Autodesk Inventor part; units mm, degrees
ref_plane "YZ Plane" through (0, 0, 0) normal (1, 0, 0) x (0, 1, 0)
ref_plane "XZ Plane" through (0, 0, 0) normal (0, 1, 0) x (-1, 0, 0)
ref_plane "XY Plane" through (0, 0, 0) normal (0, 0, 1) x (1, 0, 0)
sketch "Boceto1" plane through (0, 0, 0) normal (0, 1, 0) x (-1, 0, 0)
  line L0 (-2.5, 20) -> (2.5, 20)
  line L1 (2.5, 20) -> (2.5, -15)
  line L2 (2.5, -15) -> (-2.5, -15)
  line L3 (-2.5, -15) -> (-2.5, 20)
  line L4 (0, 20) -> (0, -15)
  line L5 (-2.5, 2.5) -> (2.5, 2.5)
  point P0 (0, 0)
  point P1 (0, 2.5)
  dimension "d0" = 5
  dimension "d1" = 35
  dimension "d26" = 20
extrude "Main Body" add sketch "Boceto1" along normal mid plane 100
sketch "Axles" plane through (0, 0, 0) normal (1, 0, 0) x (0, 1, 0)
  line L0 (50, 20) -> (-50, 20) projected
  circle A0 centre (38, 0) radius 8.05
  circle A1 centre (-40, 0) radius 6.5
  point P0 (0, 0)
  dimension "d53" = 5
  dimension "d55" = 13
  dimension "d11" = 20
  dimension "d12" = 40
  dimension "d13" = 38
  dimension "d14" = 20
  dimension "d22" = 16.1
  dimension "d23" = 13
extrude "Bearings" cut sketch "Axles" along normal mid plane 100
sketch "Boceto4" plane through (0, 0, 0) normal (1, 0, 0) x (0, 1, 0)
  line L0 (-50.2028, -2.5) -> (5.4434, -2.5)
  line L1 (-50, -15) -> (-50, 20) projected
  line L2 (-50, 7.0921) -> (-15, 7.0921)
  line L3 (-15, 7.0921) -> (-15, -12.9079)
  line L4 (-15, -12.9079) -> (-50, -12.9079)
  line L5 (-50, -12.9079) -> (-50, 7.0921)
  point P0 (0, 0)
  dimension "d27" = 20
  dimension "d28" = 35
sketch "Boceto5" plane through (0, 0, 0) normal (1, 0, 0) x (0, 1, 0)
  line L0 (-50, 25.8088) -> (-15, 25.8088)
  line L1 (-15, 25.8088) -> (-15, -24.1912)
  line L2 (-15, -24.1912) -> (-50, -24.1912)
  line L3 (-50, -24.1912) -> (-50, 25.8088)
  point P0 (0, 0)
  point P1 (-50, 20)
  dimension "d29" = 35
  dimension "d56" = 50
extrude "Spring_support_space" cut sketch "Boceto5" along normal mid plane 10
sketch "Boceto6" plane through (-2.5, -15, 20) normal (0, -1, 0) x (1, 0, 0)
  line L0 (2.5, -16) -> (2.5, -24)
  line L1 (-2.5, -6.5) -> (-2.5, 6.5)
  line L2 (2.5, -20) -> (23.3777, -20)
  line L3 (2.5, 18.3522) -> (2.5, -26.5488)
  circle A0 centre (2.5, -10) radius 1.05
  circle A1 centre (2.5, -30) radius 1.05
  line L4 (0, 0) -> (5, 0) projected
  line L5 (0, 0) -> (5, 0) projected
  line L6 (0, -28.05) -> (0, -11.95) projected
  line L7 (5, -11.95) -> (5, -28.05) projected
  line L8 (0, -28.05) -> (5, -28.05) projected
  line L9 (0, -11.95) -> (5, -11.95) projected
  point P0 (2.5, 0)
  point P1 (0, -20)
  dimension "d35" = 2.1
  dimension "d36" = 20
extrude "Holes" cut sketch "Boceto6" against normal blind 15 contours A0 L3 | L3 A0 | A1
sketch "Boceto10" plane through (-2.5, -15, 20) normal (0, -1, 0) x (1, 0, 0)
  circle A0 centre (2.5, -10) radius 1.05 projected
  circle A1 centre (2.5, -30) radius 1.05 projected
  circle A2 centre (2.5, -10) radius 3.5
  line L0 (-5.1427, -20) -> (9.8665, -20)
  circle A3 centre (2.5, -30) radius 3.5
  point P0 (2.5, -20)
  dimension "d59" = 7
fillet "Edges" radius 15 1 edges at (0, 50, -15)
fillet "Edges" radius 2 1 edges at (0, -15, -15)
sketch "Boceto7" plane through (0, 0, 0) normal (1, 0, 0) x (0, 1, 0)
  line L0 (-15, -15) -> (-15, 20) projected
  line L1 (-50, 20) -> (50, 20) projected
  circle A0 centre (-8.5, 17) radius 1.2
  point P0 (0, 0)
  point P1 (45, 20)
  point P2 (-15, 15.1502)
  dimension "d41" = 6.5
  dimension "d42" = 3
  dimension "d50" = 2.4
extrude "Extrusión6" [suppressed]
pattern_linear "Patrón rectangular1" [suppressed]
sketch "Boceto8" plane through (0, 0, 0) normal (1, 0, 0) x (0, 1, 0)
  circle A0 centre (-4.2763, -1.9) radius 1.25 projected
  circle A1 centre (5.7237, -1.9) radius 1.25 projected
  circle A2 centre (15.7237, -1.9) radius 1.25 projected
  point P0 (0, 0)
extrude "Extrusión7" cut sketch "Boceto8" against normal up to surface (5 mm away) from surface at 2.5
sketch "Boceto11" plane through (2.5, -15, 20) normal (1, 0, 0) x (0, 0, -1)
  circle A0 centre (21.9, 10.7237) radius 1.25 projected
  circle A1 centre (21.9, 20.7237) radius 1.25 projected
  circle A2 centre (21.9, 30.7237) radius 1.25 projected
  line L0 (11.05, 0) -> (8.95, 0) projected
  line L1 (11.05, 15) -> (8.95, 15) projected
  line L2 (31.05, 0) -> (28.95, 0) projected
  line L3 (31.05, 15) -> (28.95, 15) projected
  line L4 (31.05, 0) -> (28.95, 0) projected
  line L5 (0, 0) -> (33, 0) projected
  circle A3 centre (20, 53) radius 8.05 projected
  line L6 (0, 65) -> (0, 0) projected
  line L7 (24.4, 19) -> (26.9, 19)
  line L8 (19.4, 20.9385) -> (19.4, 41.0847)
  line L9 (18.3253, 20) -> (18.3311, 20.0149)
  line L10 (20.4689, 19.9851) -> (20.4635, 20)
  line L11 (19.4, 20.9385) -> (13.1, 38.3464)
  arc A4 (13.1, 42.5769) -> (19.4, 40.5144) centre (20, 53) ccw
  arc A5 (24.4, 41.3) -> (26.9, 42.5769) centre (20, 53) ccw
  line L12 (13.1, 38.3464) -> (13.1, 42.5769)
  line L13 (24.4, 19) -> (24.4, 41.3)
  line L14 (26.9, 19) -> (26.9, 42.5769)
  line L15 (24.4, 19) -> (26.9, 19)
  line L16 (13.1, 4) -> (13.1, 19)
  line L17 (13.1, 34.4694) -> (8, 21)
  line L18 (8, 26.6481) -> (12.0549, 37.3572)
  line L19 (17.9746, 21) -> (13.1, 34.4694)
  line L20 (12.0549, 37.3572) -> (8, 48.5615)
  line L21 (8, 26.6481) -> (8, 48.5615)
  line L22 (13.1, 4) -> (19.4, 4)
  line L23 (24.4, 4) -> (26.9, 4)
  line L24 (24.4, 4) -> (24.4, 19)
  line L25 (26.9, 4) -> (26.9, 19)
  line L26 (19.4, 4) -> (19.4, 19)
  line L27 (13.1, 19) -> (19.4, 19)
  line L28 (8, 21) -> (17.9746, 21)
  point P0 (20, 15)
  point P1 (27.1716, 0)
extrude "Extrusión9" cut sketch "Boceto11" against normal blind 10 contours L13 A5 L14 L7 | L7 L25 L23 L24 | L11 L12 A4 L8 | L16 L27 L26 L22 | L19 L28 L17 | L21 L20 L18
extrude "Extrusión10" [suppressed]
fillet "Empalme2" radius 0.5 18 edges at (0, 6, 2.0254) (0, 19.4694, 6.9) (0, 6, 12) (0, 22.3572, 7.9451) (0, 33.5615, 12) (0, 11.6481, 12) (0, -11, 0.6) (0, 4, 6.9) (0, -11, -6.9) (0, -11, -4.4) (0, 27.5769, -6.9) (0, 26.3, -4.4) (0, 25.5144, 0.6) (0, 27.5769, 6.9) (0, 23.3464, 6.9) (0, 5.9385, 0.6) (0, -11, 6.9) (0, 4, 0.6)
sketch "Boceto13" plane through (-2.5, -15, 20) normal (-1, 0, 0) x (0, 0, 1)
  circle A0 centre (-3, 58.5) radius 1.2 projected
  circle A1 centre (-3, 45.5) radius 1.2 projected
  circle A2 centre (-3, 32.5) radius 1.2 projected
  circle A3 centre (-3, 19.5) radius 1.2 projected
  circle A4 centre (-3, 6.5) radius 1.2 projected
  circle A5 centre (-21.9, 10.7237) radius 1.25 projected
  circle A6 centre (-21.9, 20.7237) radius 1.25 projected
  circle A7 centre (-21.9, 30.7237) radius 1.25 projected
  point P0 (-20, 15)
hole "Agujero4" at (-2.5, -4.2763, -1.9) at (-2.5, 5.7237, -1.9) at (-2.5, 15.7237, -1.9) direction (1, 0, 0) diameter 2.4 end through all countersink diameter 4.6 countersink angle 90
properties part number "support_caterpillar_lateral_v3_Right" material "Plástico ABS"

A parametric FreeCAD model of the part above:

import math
import FreeCAD as App
import Part
import Sketcher
from FreeCAD import Vector


def edges_at(feature, points):
    """Names of the edges that pass closest to the given points."""
    edges = feature.Shape.Edges
    near = lambda p: min(range(len(edges)), key=lambda i: edges[i].distToShape(Part.Vertex(*p))[0])
    return sorted({f"Edge{near(p) + 1}" for p in points})


def add_polygon(sketch, points):
    """Adds a closed chain of lines whose ends are joined by coincident constraints."""
    first, n = sketch.GeometryCount, len(points)
    for a, b in zip(points, points[1:] + points[:1]):
        sketch.addGeometry(Part.LineSegment(App.Vector(*a, 0), App.Vector(*b, 0)), False)
    for i in range(n):
        sketch.addConstraint(Sketcher.Constraint("Coincident", first + i, 2, first + (i + 1) % n, 1))

doc = App.newDocument("Part")
body = doc.addObject("PartDesign::Body", "Body")

# Sketch on XZ plane
sketch1 = body.newObject("Sketcher::SketchObject", "Sketch")
sketch1.AttachmentSupport = (doc.getObject("XZ_Plane"), [""])
sketch1.MapMode = "FlatFace"
add_polygon(sketch1, [(2, 20), (2, -15), (-2, -15), (-2, 20)])  # lines 0-3
sketch1.addConstraint([
    Sketcher.Constraint("Vertical", 0),
    Sketcher.Constraint("Horizontal", 1),
    Sketcher.Constraint("Vertical", 2),
    Sketcher.Constraint("Horizontal", 3),
    Sketcher.Constraint("DistanceX", 1, 2, 1, 1, 5.0),
    Sketcher.Constraint("DistanceY", 0, 2, 0, 1, 35.0),
    Sketcher.Constraint("DistanceY", -1, 1, 2, 2, 20.0),
    Sketcher.Constraint("DistanceX", -1, 1, 0, 2, 2.5),
])
pad1 = body.newObject("PartDesign::Pad", "Pad")
pad1.Profile = sketch1
pad1.Length = 100
pad1.Midplane = True

# Sketch on YZ plane
sketch2 = body.newObject("Sketcher::SketchObject", "Sketch001")
sketch2.AttachmentSupport = (doc.getObject("YZ_Plane"), [""])
sketch2.MapMode = "FlatFace"
sketch2.addGeometry([
    Part.Circle(Vector(38, 0, 0), Vector(0, 0, 1), 8),
    Part.Circle(Vector(-40, 0, 0), Vector(0, 0, 1), 6),
], False)
sketch2.addConstraint([
    Sketcher.Constraint("PointOnObject", 0, 3, -1),
    Sketcher.Constraint("PointOnObject", 1, 3, -1),
    Sketcher.Constraint("Diameter", 1, 13.0),
    Sketcher.Constraint("Diameter", 0, 16.1),
    Sketcher.Constraint("DistanceX", -1, 1, 0, 3, 38.0),
    Sketcher.Constraint("DistanceX", 1, 3, -1, 1, 40.0),
])
pocket1 = body.newObject("PartDesign::Pocket", "Pocket")
pocket1.Profile = sketch2
pocket1.Length = 100
pocket1.Midplane = True

# Sketch on YZ plane
sketch3 = body.newObject("Sketcher::SketchObject", "Sketch002")
sketch3.AttachmentSupport = (doc.getObject("YZ_Plane"), [""])
sketch3.MapMode = "FlatFace"
add_polygon(sketch3, [(-15, 26), (-50, 26), (-50, -24), (-15, -24)])  # lines 0-3
sketch3.addConstraint([
    Sketcher.Constraint("Horizontal", 0),
    Sketcher.Constraint("Vertical", 1),
    Sketcher.Constraint("Horizontal", 2),
    Sketcher.Constraint("Vertical", 3),
    Sketcher.Constraint("DistanceX", 0, 2, 0, 1, 35.0),
    Sketcher.Constraint("DistanceY", 1, 2, 1, 1, 50.0),
    Sketcher.Constraint("DistanceX", 0, 2, -1, 1, 50.0),
    Sketcher.Constraint("DistanceY", -1, 1, 0, 2, 25.8088),
])
pocket2 = body.newObject("PartDesign::Pocket", "Pocket001")
pocket2.Profile = sketch3
pocket2.Length = 10
pocket2.Midplane = True

# Sketch on XZ plane
sketch4 = body.newObject("Sketcher::SketchObject", "Sketch003")
sketch4.AttachmentSupport = (doc.getObject("XZ_Plane"), [""])
sketch4.MapMode = "FlatFace"
sketch4.AttachmentOffset = App.Placement(Vector(0, 0, 15), App.Rotation())
sketch4.addGeometry([
    Part.Circle(Vector(0, 10, 0), Vector(0, 0, 1), 1.1),
    Part.Circle(Vector(0, -10, 0), Vector(0, 0, 1), 1.1),
], False)
sketch4.addConstraint([
    Sketcher.Constraint("Equal", 0, 1),
    Sketcher.Constraint("Symmetric", 0, 3, 1, 3, -1, 1),
    Sketcher.Constraint("PointOnObject", 0, 3, -2),
    Sketcher.Constraint("Diameter", 0, 2.1),
    Sketcher.Constraint("DistanceY", 1, 3, 0, 3, 20.0),
])
pocket3 = body.newObject("PartDesign::Pocket", "Pocket002")
pocket3.Profile = sketch4
pocket3.Length = 15
doc.recompute()

fillet = body.newObject("PartDesign::Fillet", "Fillet")
fillet.Base = (pocket3, edges_at(pocket3, [(0, 50, -15)]))
fillet.Radius = 15
doc.recompute()

fillet2 = body.newObject("PartDesign::Fillet", "Fillet001")
fillet2.Base = (fillet, edges_at(fillet, [(0, -15, -15)]))
fillet2.Radius = 2

# Sketch on YZ plane
sketch5 = body.newObject("Sketcher::SketchObject", "Sketch004")
sketch5.AttachmentSupport = (doc.getObject("YZ_Plane"), [""])
sketch5.MapMode = "FlatFace"
sketch5.AttachmentOffset = App.Placement(Vector(0, 0, 2.5), App.Rotation())
sketch5.addGeometry([
    Part.Circle(Vector(-4.3, -1.9, 0), Vector(0, 0, 1), 1.2),
    Part.Circle(Vector(5.7, -1.9, 0), Vector(0, 0, 1), 1.2),
    Part.Circle(Vector(15.7, -1.9, 0), Vector(0, 0, 1), 1.2),
], False)
sketch5.addConstraint([
    Sketcher.Constraint("Equal", 0, 1),
    Sketcher.Constraint("Equal", 1, 2),
    Sketcher.Constraint("Horizontal", 0, 3, 1, 3),
    Sketcher.Constraint("Horizontal", 1, 3, 2, 3),
    Sketcher.Constraint("Diameter", 0, 2.5),
    Sketcher.Constraint("DistanceX", 0, 3, 1, 3, 10.0),
    Sketcher.Constraint("DistanceX", 1, 3, 2, 3, 10.0),
    Sketcher.Constraint("DistanceY", 0, 3, -1, 1, 1.9),
    Sketcher.Constraint("DistanceX", 0, 3, -1, 1, 4.2763),
])
pocket4 = body.newObject("PartDesign::Pocket", "Pocket003")
pocket4.Profile = sketch5
pocket4.Length = 5

# Sketch on YZ plane
sketch6 = body.newObject("Sketcher::SketchObject", "Sketch005")
sketch6.AttachmentSupport = (doc.getObject("YZ_Plane"), [""])
sketch6.MapMode = "FlatFace"
sketch6.AttachmentOffset = App.Placement(Vector(0, 0, 2.5), App.Rotation())
sketch6.addGeometry(Part.LineSegment(Vector(26.3, -4.4, 0), Vector(-11, -4.4, 0)), False)  # 0
sketch6.addGeometry(Part.LineSegment(Vector(-11, -4.4, 0), Vector(-11, -6.9, 0)), False)  # 1
sketch6.addGeometry(Part.LineSegment(Vector(-11, -6.9, 0), Vector(27.6, -6.9, 0)), False)  # 2
sketch6.addGeometry(Part.ArcOfCircle(Part.Circle(Vector(38, 0, 0), Vector(0, 0, 1), 12.5), math.radians(-159.39), math.radians(-146.5)), False)  # 3
sketch6.addGeometry(Part.LineSegment(Vector(23.3, 6.9, 0), Vector(5.9, 0.6, 0)), False)  # 4
sketch6.addGeometry(Part.LineSegment(Vector(5.9, 0.6, 0), Vector(25.5, 0.6, 0)), False)  # 5
sketch6.addGeometry(Part.ArcOfCircle(Part.Circle(Vector(38, 0, 0), Vector(0, 0, 1), 12.5), math.radians(146), math.radians(177)), False)  # 6
sketch6.addGeometry(Part.LineSegment(Vector(27.6, 6.9, 0), Vector(23.3, 6.9, 0)), False)  # 7
add_polygon(sketch6, [(4, 6.9), (-11, 6.9), (-11, 0.6), (4, 0.6)])  # lines 8-11
add_polygon(sketch6, [(6, 2), (19.5, 6.9), (6, 12)])  # lines 12-14
add_polygon(sketch6, [(33.6, 12), (11.6, 12), (22.4, 7.9)])  # lines 15-17
sketch6.addConstraint([
    Sketcher.Constraint("Coincident", 0, 2, 1, 1),
    Sketcher.Constraint("Coincident", 1, 2, 2, 1),
    Sketcher.Constraint("Coincident", 2, 2, 3, 2),
    Sketcher.Constraint("Coincident", 3, 1, 0, 1),
    Sketcher.Constraint("Coincident", 4, 2, 5, 1),
    Sketcher.Constraint("Coincident", 5, 2, 6, 2),
    Sketcher.Constraint("Coincident", 6, 1, 7, 1),
    Sketcher.Constraint("Coincident", 7, 2, 4, 1),
    Sketcher.Constraint("Horizontal", 0),
    Sketcher.Constraint("Vertical", 1),
    Sketcher.Constraint("Horizontal", 2),
    Sketcher.Constraint("Horizontal", 5),
    Sketcher.Constraint("Horizontal", 7),
    Sketcher.Constraint("Horizontal", 8),
    Sketcher.Constraint("Vertical", 9),
    Sketcher.Constraint("Horizontal", 10),
    Sketcher.Constraint("Vertical", 11),
    Sketcher.Constraint("Vertical", 14),
    Sketcher.Constraint("Horizontal", 15),
    Sketcher.Constraint("Symmetric", 2, 2, 6, 1, -1),
    Sketcher.Constraint("Symmetric", 1, 2, 8, 2, -1),
    Sketcher.Constraint("PointOnObject", 6, 3, -1),
    Sketcher.Constraint("Parallel", 4, 12),
    Sketcher.Constraint("Parallel", 13, 16),
    Sketcher.Constraint("Parallel", 12, 17),
    Sketcher.Constraint("Horizontal", 5, 2, 9, 2),
    Sketcher.Constraint("Horizontal", 11, 2, 12, 2),
    Sketcher.Constraint("Horizontal", 13, 2, 15, 2),
    Sketcher.Constraint("Radius", 6, 12.5),
    Sketcher.Constraint("DistanceX", 8, 2, 8, 1, 15.0),
    Sketcher.Constraint("DistanceX", 0, 2, 0, 1, 37.3),
    Sketcher.Constraint("DistanceY", 1, 2, 1, 1, 2.5),
    Sketcher.Constraint("DistanceY", 9, 2, 9, 1, 6.3),
    Sketcher.Constraint("DistanceX", -1, 1, 6, 3, 38.0),
    Sketcher.Constraint("DistanceX", 0, 2, -1, 1, 11.0),
    Sketcher.Constraint("DistanceX", -1, 1, 13, 2, 6.0),
    Sketcher.Constraint("DistanceY", -1, 1, 13, 2, 12.0),
    Sketcher.Constraint("DistanceY", 0, 2, 4, 2, 5.0),
    Sketcher.Constraint("Radius", 3, 12.5032),
    Sketcher.Constraint("DistanceX", 5, 1, 5, 2, 19.576),
    Sketcher.Constraint("Distance", 16, 11.451),
    Sketcher.Constraint("DistanceX", 7, 2, 7, 1, 4.2305),
    Sketcher.Constraint("DistanceX", 15, 2, 15, 1, 21.9134),
    Sketcher.Constraint("DistanceX", -1, 1, 15, 2, 11.648),
])
pocket5 = body.newObject("PartDesign::Pocket", "Pocket004")
pocket5.Profile = sketch6
pocket5.Length = 10
doc.recompute()

fillet3 = body.newObject("PartDesign::Fillet", "Fillet002")
fillet3.Base = (pocket5, edges_at(pocket5, [
    (0, 6, 2.025),
    (0, 19.469, 6.9),
    (0, 6, 12),
    (0, 22.357, 7.945),
    (0, 33.562, 12),
    (0, 11.648, 12),
    (0, -11, 0.6),
    (0, 4, 6.9),
    (0, -11, -6.9),
    (0, -11, -4.4),
    (0, 27.577, -6.9),
    (0, 26.3, -4.4),
    (0, 25.514, 0.6),
    (0, 27.577, 6.9),
    (0, 23.346, 6.9),
    (0, 5.939, 0.6),
    (0, -11, 6.9),
    (0, 4, 0.6),
]))
fillet3.Radius = 0.5

# Sketch on YZ plane
sketch7 = body.newObject("Sketcher::SketchObject", "Sketch006")
sketch7.AttachmentSupport = (doc.getObject("YZ_Plane"), [""])
sketch7.MapMode = "FlatFace"
sketch7.AttachmentOffset = App.Placement(Vector(0, 0, -2.5), App.Rotation())
sketch7.addGeometry([
    Part.Circle(Vector(-4.3, -1.9, 0), Vector(0, 0, 1), 1.2),
    Part.Circle(Vector(5.7, -1.9, 0), Vector(0, 0, 1), 1.2),
    Part.Circle(Vector(15.7, -1.9, 0), Vector(0, 0, 1), 1.2),
], False)
sketch7.addConstraint([
    Sketcher.Constraint("Equal", 0, 1),
    Sketcher.Constraint("Equal", 1, 2),
    Sketcher.Constraint("Horizontal", 0, 3, 1, 3),
    Sketcher.Constraint("Horizontal", 1, 3, 2, 3),
    Sketcher.Constraint("Diameter", 0, 2.4),
    Sketcher.Constraint("DistanceX", 0, 3, 1, 3, 10.0),
    Sketcher.Constraint("DistanceX", 1, 3, 2, 3, 10.0),
    Sketcher.Constraint("DistanceY", 0, 3, -1, 1, 1.9),
    Sketcher.Constraint("DistanceX", 0, 3, -1, 1, 4.2763),
])
doc.recompute()
hole = body.newObject("PartDesign::Hole", "Hole")
hole.Profile = sketch7
hole.ThreadType = "None"
hole.Diameter = 2.4
hole.DepthType = "ThroughAll"
hole.HoleCutType = "Countersink"
hole.HoleCutDiameter = 4.6
hole.HoleCutCountersinkAngle = 90
hole.Reversed = True

doc.recompute()
